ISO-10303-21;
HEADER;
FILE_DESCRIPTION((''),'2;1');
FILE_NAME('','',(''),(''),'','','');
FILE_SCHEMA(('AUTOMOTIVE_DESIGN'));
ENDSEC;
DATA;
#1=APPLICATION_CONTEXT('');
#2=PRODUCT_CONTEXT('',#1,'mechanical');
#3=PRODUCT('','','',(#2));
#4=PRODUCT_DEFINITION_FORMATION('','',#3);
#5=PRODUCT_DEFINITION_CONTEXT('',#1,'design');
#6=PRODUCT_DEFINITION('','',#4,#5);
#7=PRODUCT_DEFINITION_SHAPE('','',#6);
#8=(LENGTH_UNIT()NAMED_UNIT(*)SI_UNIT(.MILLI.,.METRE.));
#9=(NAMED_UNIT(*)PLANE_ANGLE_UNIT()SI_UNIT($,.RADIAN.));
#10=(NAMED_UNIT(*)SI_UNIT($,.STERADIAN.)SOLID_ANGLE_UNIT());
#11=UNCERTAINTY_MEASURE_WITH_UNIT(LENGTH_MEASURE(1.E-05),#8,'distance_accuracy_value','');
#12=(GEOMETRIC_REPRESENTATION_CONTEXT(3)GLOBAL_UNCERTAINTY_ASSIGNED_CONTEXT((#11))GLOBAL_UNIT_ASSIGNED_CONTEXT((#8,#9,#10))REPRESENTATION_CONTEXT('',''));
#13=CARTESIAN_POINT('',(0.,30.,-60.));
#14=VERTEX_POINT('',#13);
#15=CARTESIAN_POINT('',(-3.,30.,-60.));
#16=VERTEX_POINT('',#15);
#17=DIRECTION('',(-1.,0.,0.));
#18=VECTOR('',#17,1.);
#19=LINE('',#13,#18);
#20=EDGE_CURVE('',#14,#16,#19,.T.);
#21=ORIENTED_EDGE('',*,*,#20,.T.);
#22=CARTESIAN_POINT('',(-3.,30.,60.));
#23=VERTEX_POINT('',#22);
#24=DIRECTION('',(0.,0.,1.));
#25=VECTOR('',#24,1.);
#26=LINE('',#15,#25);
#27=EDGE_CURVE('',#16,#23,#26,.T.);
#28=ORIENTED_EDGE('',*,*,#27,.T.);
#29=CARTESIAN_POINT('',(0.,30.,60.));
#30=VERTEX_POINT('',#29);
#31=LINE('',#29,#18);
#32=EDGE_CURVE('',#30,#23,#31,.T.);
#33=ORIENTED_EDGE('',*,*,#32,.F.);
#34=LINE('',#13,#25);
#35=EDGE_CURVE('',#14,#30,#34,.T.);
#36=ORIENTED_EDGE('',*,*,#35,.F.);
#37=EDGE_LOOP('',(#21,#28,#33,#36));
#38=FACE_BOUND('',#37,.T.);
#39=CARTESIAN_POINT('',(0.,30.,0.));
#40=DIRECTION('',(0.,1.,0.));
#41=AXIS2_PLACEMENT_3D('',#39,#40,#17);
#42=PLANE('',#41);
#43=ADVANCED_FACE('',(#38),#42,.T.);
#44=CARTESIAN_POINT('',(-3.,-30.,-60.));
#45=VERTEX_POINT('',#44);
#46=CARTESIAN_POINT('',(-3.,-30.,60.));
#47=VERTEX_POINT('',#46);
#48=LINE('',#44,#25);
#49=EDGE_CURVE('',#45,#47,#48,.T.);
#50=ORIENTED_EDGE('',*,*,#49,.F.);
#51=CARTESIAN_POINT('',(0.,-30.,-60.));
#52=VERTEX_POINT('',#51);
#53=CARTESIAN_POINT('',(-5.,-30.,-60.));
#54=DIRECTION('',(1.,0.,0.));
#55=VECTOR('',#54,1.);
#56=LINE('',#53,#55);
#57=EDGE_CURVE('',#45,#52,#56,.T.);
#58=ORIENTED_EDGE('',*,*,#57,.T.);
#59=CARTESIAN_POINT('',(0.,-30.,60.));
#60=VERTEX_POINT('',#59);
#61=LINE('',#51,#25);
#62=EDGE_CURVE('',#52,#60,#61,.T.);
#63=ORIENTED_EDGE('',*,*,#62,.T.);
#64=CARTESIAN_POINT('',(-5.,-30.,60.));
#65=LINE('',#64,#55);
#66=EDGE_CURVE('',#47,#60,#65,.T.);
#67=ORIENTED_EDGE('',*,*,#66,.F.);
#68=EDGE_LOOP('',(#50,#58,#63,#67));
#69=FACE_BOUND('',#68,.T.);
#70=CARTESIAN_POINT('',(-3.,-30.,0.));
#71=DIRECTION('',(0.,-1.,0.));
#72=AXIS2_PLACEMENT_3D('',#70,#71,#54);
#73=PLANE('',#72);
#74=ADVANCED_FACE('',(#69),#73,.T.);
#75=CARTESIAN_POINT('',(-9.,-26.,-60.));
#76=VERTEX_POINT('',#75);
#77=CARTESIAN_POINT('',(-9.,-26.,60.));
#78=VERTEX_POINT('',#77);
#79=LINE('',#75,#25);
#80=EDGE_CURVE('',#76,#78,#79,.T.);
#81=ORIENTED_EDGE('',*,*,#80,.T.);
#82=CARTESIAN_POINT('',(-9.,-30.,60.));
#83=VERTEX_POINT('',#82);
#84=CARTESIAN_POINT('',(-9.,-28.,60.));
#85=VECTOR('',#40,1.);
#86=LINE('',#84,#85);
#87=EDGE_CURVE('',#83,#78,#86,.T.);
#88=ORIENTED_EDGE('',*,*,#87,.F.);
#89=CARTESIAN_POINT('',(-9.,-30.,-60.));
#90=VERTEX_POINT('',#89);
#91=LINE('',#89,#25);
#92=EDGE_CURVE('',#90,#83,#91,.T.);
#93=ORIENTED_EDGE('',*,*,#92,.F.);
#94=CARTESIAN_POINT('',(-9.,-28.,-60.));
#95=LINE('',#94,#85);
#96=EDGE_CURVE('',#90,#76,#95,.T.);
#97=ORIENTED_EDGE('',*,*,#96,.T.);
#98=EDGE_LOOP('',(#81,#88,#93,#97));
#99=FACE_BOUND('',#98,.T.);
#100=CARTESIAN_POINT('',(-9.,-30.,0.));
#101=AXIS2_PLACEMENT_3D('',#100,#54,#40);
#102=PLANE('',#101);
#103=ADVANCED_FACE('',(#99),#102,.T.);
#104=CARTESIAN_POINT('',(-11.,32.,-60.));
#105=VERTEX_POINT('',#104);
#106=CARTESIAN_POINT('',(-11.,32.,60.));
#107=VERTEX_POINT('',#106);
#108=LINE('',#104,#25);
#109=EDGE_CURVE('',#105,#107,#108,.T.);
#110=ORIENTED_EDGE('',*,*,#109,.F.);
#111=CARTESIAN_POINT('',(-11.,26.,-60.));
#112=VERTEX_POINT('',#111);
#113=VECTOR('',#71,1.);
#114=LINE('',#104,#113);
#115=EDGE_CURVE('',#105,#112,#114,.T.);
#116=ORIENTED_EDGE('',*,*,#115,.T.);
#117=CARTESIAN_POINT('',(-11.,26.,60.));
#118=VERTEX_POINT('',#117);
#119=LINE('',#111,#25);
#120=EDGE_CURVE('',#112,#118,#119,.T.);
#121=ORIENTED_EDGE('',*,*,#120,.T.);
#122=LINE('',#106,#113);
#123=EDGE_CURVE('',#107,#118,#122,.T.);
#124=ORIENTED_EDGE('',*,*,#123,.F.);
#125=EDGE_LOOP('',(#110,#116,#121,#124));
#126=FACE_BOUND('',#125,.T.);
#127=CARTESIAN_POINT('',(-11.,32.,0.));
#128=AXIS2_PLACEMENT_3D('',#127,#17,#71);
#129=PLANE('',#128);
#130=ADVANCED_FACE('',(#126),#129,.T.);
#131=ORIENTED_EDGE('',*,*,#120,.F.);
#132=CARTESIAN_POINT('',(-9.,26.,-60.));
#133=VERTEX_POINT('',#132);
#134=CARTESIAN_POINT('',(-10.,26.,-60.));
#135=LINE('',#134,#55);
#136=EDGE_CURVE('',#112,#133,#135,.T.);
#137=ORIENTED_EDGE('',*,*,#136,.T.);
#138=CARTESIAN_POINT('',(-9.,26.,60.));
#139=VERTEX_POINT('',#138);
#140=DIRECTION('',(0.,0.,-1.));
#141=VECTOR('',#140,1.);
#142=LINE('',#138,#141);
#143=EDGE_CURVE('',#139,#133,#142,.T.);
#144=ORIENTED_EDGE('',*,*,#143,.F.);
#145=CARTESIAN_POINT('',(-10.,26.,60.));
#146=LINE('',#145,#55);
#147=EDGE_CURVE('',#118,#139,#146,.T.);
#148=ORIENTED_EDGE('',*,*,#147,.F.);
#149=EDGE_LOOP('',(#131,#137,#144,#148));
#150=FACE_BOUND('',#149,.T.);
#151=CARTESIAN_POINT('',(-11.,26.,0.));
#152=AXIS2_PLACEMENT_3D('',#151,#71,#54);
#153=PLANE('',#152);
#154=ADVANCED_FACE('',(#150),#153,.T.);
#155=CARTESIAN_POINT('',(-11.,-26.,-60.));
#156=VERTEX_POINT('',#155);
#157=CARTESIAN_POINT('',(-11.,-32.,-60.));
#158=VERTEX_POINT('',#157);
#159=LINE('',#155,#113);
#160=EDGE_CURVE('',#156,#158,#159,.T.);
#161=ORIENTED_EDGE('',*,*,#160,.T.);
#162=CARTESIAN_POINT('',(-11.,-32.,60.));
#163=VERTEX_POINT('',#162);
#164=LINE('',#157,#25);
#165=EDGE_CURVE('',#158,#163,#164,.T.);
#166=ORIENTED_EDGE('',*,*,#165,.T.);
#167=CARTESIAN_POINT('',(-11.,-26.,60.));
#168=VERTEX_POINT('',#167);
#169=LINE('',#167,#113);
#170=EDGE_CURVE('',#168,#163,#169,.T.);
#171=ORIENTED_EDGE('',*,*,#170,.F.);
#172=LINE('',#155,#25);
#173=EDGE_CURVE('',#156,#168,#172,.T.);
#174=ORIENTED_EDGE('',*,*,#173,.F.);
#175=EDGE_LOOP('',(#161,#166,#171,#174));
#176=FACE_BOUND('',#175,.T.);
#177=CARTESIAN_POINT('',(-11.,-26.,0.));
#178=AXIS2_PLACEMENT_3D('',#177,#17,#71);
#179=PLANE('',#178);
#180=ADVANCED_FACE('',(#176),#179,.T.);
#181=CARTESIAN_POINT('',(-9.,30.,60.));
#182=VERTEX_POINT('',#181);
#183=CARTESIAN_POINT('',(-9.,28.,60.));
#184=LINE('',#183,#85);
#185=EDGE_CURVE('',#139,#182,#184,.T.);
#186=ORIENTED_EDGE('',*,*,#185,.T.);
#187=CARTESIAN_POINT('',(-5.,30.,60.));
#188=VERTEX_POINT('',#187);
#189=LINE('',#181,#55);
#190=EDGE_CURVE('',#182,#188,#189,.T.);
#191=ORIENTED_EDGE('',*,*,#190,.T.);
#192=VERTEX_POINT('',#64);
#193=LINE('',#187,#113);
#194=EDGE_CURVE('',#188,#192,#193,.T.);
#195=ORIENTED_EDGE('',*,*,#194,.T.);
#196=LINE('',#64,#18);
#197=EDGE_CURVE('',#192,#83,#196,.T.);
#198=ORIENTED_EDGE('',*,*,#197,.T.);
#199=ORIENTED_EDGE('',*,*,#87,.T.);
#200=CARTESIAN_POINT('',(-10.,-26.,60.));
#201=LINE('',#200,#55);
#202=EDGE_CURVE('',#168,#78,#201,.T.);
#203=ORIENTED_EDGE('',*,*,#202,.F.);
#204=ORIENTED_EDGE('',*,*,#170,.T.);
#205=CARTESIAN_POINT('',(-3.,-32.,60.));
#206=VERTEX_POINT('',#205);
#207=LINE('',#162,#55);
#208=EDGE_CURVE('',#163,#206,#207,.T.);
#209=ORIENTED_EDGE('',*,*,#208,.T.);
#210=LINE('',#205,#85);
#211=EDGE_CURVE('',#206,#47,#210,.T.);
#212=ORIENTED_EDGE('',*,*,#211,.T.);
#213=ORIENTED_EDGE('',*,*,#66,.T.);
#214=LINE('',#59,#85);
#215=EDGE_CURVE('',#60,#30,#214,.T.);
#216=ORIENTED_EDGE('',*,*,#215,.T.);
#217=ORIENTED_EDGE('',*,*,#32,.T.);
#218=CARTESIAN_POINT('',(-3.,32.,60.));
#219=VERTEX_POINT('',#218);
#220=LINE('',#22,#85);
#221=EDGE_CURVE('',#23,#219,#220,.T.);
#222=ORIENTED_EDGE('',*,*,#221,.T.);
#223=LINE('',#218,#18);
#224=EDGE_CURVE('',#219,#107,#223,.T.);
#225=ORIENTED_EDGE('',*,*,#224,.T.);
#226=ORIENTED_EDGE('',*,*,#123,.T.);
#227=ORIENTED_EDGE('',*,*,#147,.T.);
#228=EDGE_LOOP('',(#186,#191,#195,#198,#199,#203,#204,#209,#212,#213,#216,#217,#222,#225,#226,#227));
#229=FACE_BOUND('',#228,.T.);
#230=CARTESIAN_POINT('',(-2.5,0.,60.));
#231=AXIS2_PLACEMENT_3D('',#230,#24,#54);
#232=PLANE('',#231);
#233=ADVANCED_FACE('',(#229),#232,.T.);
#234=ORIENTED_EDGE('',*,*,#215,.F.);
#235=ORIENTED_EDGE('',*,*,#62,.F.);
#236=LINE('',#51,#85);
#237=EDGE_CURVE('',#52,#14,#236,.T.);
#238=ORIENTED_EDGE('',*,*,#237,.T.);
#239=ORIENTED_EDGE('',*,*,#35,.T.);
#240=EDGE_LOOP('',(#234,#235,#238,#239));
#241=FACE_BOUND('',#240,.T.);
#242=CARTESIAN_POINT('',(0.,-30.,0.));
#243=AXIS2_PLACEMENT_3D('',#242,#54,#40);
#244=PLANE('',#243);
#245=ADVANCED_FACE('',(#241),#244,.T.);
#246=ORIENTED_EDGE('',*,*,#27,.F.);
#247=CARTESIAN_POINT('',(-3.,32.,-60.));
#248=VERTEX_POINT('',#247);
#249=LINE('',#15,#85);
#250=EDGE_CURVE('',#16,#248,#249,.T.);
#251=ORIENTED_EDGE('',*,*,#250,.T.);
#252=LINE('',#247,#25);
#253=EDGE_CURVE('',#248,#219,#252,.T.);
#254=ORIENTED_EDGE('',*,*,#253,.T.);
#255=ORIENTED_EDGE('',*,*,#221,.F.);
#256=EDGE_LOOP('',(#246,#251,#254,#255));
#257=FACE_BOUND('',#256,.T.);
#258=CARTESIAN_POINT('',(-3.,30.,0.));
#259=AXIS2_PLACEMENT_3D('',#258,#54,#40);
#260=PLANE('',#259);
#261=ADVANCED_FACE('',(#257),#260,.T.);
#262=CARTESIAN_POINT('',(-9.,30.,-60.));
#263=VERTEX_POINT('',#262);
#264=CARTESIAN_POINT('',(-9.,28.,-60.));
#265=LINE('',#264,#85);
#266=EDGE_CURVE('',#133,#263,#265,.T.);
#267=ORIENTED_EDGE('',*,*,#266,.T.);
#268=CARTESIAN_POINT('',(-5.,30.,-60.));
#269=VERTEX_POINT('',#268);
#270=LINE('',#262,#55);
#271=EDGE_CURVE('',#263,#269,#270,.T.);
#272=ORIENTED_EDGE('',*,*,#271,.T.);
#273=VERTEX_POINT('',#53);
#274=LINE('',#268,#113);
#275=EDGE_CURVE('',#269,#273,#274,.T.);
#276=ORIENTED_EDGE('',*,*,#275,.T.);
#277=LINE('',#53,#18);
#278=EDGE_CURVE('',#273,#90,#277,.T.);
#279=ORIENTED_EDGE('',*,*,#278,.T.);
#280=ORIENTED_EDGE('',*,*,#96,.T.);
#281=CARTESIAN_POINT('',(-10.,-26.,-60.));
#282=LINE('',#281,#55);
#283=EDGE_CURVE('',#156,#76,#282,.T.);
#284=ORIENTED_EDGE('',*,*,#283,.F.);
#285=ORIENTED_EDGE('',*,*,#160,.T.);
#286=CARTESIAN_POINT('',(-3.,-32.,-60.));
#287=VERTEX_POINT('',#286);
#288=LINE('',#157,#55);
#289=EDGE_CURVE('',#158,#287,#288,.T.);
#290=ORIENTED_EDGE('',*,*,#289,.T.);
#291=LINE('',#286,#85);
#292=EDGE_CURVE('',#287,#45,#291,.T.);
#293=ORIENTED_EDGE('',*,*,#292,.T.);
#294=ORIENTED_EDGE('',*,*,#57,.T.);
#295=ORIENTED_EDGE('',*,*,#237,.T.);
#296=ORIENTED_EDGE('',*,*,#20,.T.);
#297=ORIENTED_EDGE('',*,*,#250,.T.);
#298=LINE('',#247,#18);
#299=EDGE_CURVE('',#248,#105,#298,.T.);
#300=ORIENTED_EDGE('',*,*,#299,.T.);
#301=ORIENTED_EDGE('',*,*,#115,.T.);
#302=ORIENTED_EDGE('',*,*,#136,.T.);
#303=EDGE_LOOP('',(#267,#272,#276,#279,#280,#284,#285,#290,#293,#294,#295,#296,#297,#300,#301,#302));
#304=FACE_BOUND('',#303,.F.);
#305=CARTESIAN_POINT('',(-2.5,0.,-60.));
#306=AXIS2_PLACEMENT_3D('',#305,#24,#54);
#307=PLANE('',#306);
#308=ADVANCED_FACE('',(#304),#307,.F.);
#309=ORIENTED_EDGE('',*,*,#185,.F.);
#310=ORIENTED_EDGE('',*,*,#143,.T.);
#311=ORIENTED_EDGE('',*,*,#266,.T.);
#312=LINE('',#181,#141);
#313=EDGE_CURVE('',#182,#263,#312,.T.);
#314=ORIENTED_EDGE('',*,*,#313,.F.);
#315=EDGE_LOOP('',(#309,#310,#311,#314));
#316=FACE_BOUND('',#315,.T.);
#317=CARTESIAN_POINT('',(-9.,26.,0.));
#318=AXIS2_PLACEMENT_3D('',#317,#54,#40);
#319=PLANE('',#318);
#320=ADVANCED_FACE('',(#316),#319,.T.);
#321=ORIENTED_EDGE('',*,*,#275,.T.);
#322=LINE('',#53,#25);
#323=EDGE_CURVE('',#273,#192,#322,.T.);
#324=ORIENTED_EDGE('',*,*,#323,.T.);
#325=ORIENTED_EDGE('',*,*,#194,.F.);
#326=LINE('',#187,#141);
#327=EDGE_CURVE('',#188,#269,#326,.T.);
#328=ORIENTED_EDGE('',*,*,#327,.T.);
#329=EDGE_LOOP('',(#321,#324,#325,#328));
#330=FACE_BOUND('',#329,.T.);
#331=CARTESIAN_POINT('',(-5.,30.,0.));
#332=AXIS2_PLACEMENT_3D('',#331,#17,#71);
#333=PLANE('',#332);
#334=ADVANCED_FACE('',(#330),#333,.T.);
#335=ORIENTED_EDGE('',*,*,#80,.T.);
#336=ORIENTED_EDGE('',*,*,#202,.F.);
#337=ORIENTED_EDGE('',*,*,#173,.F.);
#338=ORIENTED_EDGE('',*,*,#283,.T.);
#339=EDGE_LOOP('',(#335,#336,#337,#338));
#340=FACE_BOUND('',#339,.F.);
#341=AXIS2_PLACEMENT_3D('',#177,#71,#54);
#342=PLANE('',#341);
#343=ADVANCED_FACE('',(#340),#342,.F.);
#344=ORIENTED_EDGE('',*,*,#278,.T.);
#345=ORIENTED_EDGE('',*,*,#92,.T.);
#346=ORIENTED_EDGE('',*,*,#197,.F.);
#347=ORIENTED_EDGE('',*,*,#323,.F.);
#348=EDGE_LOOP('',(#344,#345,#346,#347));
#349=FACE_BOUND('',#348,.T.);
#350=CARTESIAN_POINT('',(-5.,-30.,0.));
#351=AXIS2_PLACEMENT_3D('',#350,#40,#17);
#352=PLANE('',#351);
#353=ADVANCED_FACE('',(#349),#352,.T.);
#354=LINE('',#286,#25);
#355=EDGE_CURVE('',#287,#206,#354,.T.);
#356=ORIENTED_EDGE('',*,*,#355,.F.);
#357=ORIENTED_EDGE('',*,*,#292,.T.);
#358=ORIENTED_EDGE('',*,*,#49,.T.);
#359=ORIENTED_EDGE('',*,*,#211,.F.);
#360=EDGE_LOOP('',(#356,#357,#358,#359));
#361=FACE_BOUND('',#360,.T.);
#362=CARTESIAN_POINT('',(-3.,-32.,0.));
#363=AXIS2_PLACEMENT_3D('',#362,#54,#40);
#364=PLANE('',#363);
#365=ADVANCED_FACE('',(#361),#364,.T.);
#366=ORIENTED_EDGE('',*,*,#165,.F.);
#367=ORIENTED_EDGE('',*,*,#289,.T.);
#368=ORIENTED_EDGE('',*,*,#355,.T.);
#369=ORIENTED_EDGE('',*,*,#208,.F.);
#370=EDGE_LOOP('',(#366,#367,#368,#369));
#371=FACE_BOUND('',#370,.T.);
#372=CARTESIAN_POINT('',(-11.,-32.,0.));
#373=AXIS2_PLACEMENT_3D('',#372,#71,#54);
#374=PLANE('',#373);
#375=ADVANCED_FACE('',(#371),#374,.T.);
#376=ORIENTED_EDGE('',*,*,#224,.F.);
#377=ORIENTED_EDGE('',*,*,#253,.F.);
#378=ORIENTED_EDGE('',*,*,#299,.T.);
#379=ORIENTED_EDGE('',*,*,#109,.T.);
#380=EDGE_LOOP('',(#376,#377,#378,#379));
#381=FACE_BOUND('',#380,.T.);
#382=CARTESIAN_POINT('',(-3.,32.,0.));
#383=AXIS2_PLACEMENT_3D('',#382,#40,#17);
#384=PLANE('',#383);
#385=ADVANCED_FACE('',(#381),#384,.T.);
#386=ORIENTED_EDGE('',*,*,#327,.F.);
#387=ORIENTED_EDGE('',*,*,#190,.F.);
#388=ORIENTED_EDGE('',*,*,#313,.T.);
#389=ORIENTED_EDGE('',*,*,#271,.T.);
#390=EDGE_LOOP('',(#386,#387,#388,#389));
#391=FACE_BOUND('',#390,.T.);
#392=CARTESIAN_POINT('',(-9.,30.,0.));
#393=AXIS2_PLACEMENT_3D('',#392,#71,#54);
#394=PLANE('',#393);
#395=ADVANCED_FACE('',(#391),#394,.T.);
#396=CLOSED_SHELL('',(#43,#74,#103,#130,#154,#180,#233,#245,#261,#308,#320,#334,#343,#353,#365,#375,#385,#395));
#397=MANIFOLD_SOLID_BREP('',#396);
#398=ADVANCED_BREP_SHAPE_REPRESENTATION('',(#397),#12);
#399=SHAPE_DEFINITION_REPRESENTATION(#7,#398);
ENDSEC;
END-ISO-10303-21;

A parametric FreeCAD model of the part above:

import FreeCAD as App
import Part
import Sketcher
Q = App.Units.Quantity

doc = App.newDocument("Part")
params = doc.addObject("Spreadsheet::Sheet", "Params")
for row, (alias, value) in enumerate([
    ("sketch1_width", "4 mm"),
    ("sketch1_width2", "2 mm"),
    ("sketch1_width3", "8 mm"),
    ("sketch1_width4", "3 mm"),
    ("sketch1_height", "60 mm"),
    ("pad1_length", "60 mm"),
    ("pad1_length2", "60 mm"),
], start=1):
    params.set(f"A{row}", alias)
    params.set(f"B{row}", "=" + value)
    params.setAlias(f"B{row}", alias)

body = doc.addObject("PartDesign::Body", "Body")

# Sketch on XY plane
sketch1 = body.newObject("Sketcher::SketchObject", "Sketch")
sketch1.AttachmentSupport = (doc.getObject("XY_Plane"), [""])
sketch1.MapMode = "FlatFace"
sketch1.addGeometry([
    Part.LineSegment(App.Vector(-5, 30, 0), App.Vector(-5, -30, 0)),  # 0
    Part.LineSegment(App.Vector(-5, -30, 0), App.Vector(-9, -30, 0)),  # 1
    Part.LineSegment(App.Vector(-9, -30, 0), App.Vector(-9, -26, 0)),  # 2
    Part.LineSegment(App.Vector(-9, -26, 0), App.Vector(-11, -26, 0)),  # 3
    Part.LineSegment(App.Vector(-11, -26, 0), App.Vector(-11, -32, 0)),  # 4
    Part.LineSegment(App.Vector(-11, -32, 0), App.Vector(-3, -32, 0)),  # 5
    Part.LineSegment(App.Vector(-3, -32, 0), App.Vector(-3, -30, 0)),  # 6
    Part.LineSegment(App.Vector(-3, -30, 0), App.Vector(0, -30, 0)),  # 7
    Part.LineSegment(App.Vector(0, -30, 0), App.Vector(0, 30, 0)),  # 8
    Part.LineSegment(App.Vector(0, 30, 0), App.Vector(-3, 30, 0)),  # 9
    Part.LineSegment(App.Vector(-3, 30, 0), App.Vector(-3, 32, 0)),  # 10
    Part.LineSegment(App.Vector(-3, 32, 0), App.Vector(-11, 32, 0)),  # 11
    Part.LineSegment(App.Vector(-11, 32, 0), App.Vector(-11, 26, 0)),  # 12
    Part.LineSegment(App.Vector(-11, 26, 0), App.Vector(-9, 26, 0)),  # 13
    Part.LineSegment(App.Vector(-9, 26, 0), App.Vector(-9, 30, 0)),  # 14
    Part.LineSegment(App.Vector(-9, 30, 0), App.Vector(-5, 30, 0)),  # 15
], False)
sketch1.addConstraint([
    Sketcher.Constraint("Coincident", 0, 2, 1, 1),
    Sketcher.Constraint("Coincident", 1, 2, 2, 1),
    Sketcher.Constraint("Coincident", 2, 2, 3, 1),
    Sketcher.Constraint("Coincident", 3, 2, 4, 1),
    Sketcher.Constraint("Coincident", 4, 2, 5, 1),
    Sketcher.Constraint("Coincident", 5, 2, 6, 1),
    Sketcher.Constraint("Coincident", 6, 2, 7, 1),
    Sketcher.Constraint("Coincident", 7, 2, 8, 1),
    Sketcher.Constraint("Coincident", 8, 2, 9, 1),
    Sketcher.Constraint("Coincident", 9, 2, 10, 1),
    Sketcher.Constraint("Coincident", 10, 2, 11, 1),
    Sketcher.Constraint("Coincident", 11, 2, 12, 1),
    Sketcher.Constraint("Coincident", 12, 2, 13, 1),
    Sketcher.Constraint("Coincident", 13, 2, 14, 1),
    Sketcher.Constraint("Coincident", 14, 2, 15, 1),
    Sketcher.Constraint("Coincident", 15, 2, 0, 1),
    Sketcher.Constraint("Vertical", 0),
    Sketcher.Constraint("Horizontal", 1),
    Sketcher.Constraint("Vertical", 2),
    Sketcher.Constraint("Horizontal", 3),
    Sketcher.Constraint("Vertical", 4),
    Sketcher.Constraint("Horizontal", 5),
    Sketcher.Constraint("Vertical", 6),
    Sketcher.Constraint("Horizontal", 7),
    Sketcher.Constraint("Vertical", 8),
    Sketcher.Constraint("Horizontal", 9),
    Sketcher.Constraint("Vertical", 10),
    Sketcher.Constraint("Horizontal", 11),
    Sketcher.Constraint("Vertical", 12),
    Sketcher.Constraint("Horizontal", 13),
    Sketcher.Constraint("Vertical", 14),
    Sketcher.Constraint("Horizontal", 15),
    Sketcher.Constraint("Symmetric", 7, 2, 8, 2, -1, 1),
    Sketcher.Constraint("Symmetric", 5, 2, 10, 2, -1),
    Sketcher.Constraint("Symmetric", 3, 2, 12, 2, -1),
    Sketcher.Constraint("Symmetric", 1, 2, 14, 2, -1),
    Sketcher.Constraint("Horizontal", 1, 2, 6, 2),
    Sketcher.Constraint("Equal", 15, 2),
    Sketcher.Constraint("Equal", 13, 6),
    Sketcher.Constraint("DistanceX", 1, 2, 1, 1, Q("4 mm")),
    Sketcher.Constraint("DistanceX", 3, 2, 3, 1, Q("2 mm")),
    Sketcher.Constraint("DistanceX", 5, 1, 5, 2, Q("8 mm")),
    Sketcher.Constraint("DistanceX", 7, 1, 7, 2, Q("3 mm")),
    Sketcher.Constraint("DistanceY", 0, 2, 0, 1, Q("60 mm")),
])
sketch1.setExpression("Constraints[39]", "Params.sketch1_width")
sketch1.setExpression("Constraints[40]", "Params.sketch1_width2")
sketch1.setExpression("Constraints[41]", "Params.sketch1_width3")
sketch1.setExpression("Constraints[42]", "Params.sketch1_width4")
sketch1.setExpression("Constraints[43]", "Params.sketch1_height")
pad1 = body.newObject("PartDesign::Pad", "Pad")
pad1.Profile = sketch1
pad1.Type = "TwoLengths"
pad1.setExpression("Length", "Params.pad1_length")
pad1.setExpression("Length2", "Params.pad1_length2")

doc.recompute()
